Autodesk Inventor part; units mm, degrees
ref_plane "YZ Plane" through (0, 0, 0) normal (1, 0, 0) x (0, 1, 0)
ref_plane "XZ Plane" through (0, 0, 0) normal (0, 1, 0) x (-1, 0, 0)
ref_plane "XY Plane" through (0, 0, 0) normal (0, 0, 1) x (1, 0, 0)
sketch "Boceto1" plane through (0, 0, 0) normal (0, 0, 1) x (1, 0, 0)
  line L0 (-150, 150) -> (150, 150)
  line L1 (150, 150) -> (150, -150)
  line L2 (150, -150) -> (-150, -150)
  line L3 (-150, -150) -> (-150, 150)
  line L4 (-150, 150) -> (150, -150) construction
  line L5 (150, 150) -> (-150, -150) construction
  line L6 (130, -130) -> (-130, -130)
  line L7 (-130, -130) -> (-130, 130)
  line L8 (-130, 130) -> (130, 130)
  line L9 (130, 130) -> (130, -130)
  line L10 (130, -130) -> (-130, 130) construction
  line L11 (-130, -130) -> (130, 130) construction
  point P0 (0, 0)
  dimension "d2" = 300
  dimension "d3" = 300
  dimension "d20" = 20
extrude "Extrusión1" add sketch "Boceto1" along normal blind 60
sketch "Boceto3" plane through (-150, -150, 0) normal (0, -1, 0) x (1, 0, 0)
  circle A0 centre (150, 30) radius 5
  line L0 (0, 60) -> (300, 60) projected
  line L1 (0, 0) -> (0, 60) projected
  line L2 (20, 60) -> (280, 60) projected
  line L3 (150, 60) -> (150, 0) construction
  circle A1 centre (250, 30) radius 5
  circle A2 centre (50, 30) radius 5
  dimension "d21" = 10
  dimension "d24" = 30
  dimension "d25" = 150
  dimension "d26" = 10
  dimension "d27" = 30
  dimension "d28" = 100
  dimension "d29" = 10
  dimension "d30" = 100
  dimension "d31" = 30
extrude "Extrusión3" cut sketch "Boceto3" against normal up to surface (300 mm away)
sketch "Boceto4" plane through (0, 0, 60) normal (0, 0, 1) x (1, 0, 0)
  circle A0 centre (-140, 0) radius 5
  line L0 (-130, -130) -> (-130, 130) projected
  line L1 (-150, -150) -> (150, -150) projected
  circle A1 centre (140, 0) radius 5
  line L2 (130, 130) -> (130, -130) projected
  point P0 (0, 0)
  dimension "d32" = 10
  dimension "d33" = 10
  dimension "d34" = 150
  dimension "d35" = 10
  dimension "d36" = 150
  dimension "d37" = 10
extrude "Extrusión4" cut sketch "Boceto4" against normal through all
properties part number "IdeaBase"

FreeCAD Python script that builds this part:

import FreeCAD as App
import Part
import Sketcher
from FreeCAD import Vector

doc = App.newDocument("Part")
body = doc.addObject("PartDesign::Body", "Body")

sketch1 = doc.addObject("Sketcher::SketchObject", "Sketch")
body.addObject(sketch1)
sketch1.AttachmentSupport = (doc.XY_Plane, [""])
sketch1.MapMode = "FlatFace"
sketch1.addGeometry([
    Part.LineSegment(Vector(150, 150, 0), Vector(-150, 150, 0)),
    Part.LineSegment(Vector(-150, 150, 0), Vector(-150, -150, 0)),
    Part.LineSegment(Vector(-150, -150, 0), Vector(150, -150, 0)),
    Part.LineSegment(Vector(150, -150, 0), Vector(150, 150, 0)),
    Part.LineSegment(Vector(130, 130, 0), Vector(130, -130, 0)),
    Part.LineSegment(Vector(130, -130, 0), Vector(-130, -130, 0)),
    Part.LineSegment(Vector(-130, -130, 0), Vector(-130, 130, 0)),
    Part.LineSegment(Vector(-130, 130, 0), Vector(130, 130, 0)),
], False)
sketch1.addConstraint([
    Sketcher.Constraint("Coincident", 0, 2, 1, 1),
    Sketcher.Constraint("Coincident", 1, 2, 2, 1),
    Sketcher.Constraint("Coincident", 2, 2, 3, 1),
    Sketcher.Constraint("Coincident", 3, 2, 0, 1),
    Sketcher.Constraint("Coincident", 4, 2, 5, 1),
    Sketcher.Constraint("Coincident", 5, 2, 6, 1),
    Sketcher.Constraint("Coincident", 6, 2, 7, 1),
    Sketcher.Constraint("Coincident", 7, 2, 4, 1),
    Sketcher.Constraint("Horizontal", 0),
    Sketcher.Constraint("Vertical", 1),
    Sketcher.Constraint("Horizontal", 2),
    Sketcher.Constraint("Vertical", 3),
    Sketcher.Constraint("Vertical", 4),
    Sketcher.Constraint("Horizontal", 5),
    Sketcher.Constraint("Vertical", 6),
    Sketcher.Constraint("Horizontal", 7),
    Sketcher.Constraint("Symmetric", 0, 2, 2, 2, -1, 1),
    Sketcher.Constraint("Symmetric", 4, 2, 6, 2, -1, 1),
    Sketcher.Constraint("Equal", 2, 1),
    Sketcher.Constraint("Equal", 7, 4),
    Sketcher.Constraint("DistanceX", 0, 2, 0, 1, 300.0),
    Sketcher.Constraint("DistanceX", 4, 2, 2, 2, 20.0),
])
pad1 = doc.addObject("PartDesign::Pad", "Pad")
body.addObject(pad1)
pad1.Profile = sketch1
pad1.Length = 60

sketch2 = doc.addObject("Sketcher::SketchObject", "Sketch001")
body.addObject(sketch2)
sketch2.AttachmentSupport = (doc.XZ_Plane, [""])
sketch2.MapMode = "FlatFace"
sketch2.AttachmentOffset = App.Placement(Vector(0, 0, 150), App.Rotation())
sketch2.addGeometry([
    Part.Circle(Vector(0, 30, 0), Vector(0, 0, 1), 5),
    Part.Circle(Vector(100, 30, 0), Vector(0, 0, 1), 5),
    Part.Circle(Vector(-100, 30, 0), Vector(0, 0, 1), 5),
], False)
sketch2.addConstraint([
    Sketcher.Constraint("Equal", 0, 1),
    Sketcher.Constraint("Equal", 1, 2),
    Sketcher.Constraint("Symmetric", 1, 3, 2, 3, -2),
    Sketcher.Constraint("PointOnObject", 0, 3, -2),
    Sketcher.Constraint("Horizontal", 0, 3, 1, 3),
    Sketcher.Constraint("Diameter", 0, 10.0),
    Sketcher.Constraint("DistanceY", -1, 1, 0, 3, 30.0),
    Sketcher.Constraint("DistanceX", -1, 1, 1, 3, 100.0),
])
pocket1 = doc.addObject("PartDesign::Pocket", "Pocket")
body.addObject(pocket1)
pocket1.Profile = sketch2
pocket1.Length = 300

sketch3 = doc.addObject("Sketcher::SketchObject", "Sketch002")
body.addObject(sketch3)
sketch3.AttachmentSupport = (doc.XY_Plane, [""])
sketch3.MapMode = "FlatFace"
sketch3.AttachmentOffset = App.Placement(Vector(0, 0, 60), App.Rotation())
sketch3.addGeometry([
    Part.Circle(Vector(-140, 0, 0), Vector(0, 0, 1), 5),
    Part.Circle(Vector(140, 0, 0), Vector(0, 0, 1), 5),
], False)
sketch3.addConstraint([
    Sketcher.Constraint("Equal", 0, 1),
    Sketcher.Constraint("Symmetric", 0, 3, 1, 3, -1, 1),
    Sketcher.Constraint("PointOnObject", 0, 3, -1),
    Sketcher.Constraint("Diameter", 0, 10.0),
    Sketcher.Constraint("DistanceX", 0, 3, -1, 1, 140.0),
])
pocket2 = doc.addObject("PartDesign::Pocket", "Pocket001")
body.addObject(pocket2)
pocket2.Profile = sketch3
pocket2.Type = "ThroughAll"

doc.recompute()
